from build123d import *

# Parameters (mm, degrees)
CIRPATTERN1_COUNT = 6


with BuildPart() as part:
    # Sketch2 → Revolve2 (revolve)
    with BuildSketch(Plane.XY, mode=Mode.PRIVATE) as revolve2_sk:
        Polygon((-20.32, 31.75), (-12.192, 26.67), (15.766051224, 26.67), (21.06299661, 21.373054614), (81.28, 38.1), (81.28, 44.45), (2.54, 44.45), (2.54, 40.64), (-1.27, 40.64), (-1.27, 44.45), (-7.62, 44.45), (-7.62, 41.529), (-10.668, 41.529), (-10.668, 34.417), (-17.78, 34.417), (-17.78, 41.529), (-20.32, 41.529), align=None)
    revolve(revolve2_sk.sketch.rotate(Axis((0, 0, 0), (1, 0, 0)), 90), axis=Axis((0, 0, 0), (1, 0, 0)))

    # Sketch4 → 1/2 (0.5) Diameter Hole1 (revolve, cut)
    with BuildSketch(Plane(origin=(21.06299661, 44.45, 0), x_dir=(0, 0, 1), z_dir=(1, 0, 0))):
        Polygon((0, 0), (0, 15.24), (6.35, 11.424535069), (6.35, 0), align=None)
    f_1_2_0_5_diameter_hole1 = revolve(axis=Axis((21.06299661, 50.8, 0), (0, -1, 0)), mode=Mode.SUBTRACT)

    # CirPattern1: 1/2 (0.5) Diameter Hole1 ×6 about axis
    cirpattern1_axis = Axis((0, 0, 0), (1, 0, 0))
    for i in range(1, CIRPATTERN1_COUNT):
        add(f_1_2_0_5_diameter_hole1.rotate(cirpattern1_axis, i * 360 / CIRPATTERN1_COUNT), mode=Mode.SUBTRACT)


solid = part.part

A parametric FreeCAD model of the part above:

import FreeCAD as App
import Part
import Sketcher

V = App.Vector
Q = App.Units.Quantity

doc = App.newDocument("Part")
body = doc.addObject("PartDesign::Body", "Body")

sketch1 = body.newObject("Sketcher::SketchObject", "Sketch")
sketch1.AttachmentSupport = (doc.getObject("XY_Plane"), [""])
sketch1.MapMode = "FlatFace"
sketch1.addGeometry(Part.LineSegment(V(-20.3, 31.8, 0), V(-12.2, 26.7, 0)), False)
sketch1.addGeometry(Part.LineSegment(V(-12.2, 26.7, 0), V(15.8, 26.7, 0)), False)
sketch1.addGeometry(Part.LineSegment(V(15.8, 26.7, 0), V(21.1, 21.4, 0)), False)
sketch1.addGeometry(Part.LineSegment(V(21.1, 21.4, 0), V(81.3, 38.1, 0)), False)
sketch1.addGeometry(Part.LineSegment(V(81.3, 38.1, 0), V(81.3, 44.5, 0)), False)
sketch1.addGeometry(Part.LineSegment(V(81.3, 44.5, 0), V(2.5, 44.5, 0)), False)
sketch1.addGeometry(Part.LineSegment(V(2.5, 44.5, 0), V(2.5, 40.6, 0)), False)
sketch1.addGeometry(Part.LineSegment(V(2.5, 40.6, 0), V(-1.3, 40.6, 0)), False)
sketch1.addGeometry(Part.LineSegment(V(-1.3, 40.6, 0), V(-1.3, 44.5, 0)), False)
sketch1.addGeometry(Part.LineSegment(V(-1.3, 44.5, 0), V(-7.6, 44.5, 0)), False)
sketch1.addGeometry(Part.LineSegment(V(-7.6, 44.5, 0), V(-7.6, 41.5, 0)), False)
sketch1.addGeometry(Part.LineSegment(V(-7.6, 41.5, 0), V(-10.7, 41.5, 0)), False)
sketch1.addGeometry(Part.LineSegment(V(-10.7, 41.5, 0), V(-10.7, 34.4, 0)), False)
sketch1.addGeometry(Part.LineSegment(V(-10.7, 34.4, 0), V(-17.8, 34.4, 0)), False)
sketch1.addGeometry(Part.LineSegment(V(-17.8, 34.4, 0), V(-17.8, 41.5, 0)), False)
sketch1.addGeometry(Part.LineSegment(V(-17.8, 41.5, 0), V(-20.3, 41.5, 0)), False)
sketch1.addGeometry(Part.LineSegment(V(-20.3, 41.5, 0), V(-20.3, 31.8, 0)), False)
sketch1.addConstraint(Sketcher.Constraint("Coincident", 0, 2, 1, 1))
sketch1.addConstraint(Sketcher.Constraint("Coincident", 1, 2, 2, 1))
sketch1.addConstraint(Sketcher.Constraint("Coincident", 2, 2, 3, 1))
sketch1.addConstraint(Sketcher.Constraint("Coincident", 3, 2, 4, 1))
sketch1.addConstraint(Sketcher.Constraint("Coincident", 4, 2, 5, 1))
sketch1.addConstraint(Sketcher.Constraint("Coincident", 5, 2, 6, 1))
sketch1.addConstraint(Sketcher.Constraint("Coincident", 6, 2, 7, 1))
sketch1.addConstraint(Sketcher.Constraint("Coincident", 7, 2, 8, 1))
sketch1.addConstraint(Sketcher.Constraint("Coincident", 8, 2, 9, 1))
sketch1.addConstraint(Sketcher.Constraint("Coincident", 9, 2, 10, 1))
sketch1.addConstraint(Sketcher.Constraint("Coincident", 10, 2, 11, 1))
sketch1.addConstraint(Sketcher.Constraint("Coincident", 11, 2, 12, 1))
sketch1.addConstraint(Sketcher.Constraint("Coincident", 12, 2, 13, 1))
sketch1.addConstraint(Sketcher.Constraint("Coincident", 13, 2, 14, 1))
sketch1.addConstraint(Sketcher.Constraint("Coincident", 14, 2, 15, 1))
sketch1.addConstraint(Sketcher.Constraint("Coincident", 15, 2, 16, 1))
sketch1.addConstraint(Sketcher.Constraint("Coincident", 16, 2, 0, 1))
sketch1.addConstraint(Sketcher.Constraint("Horizontal", 1))
sketch1.addConstraint(Sketcher.Constraint("Vertical", 4))
sketch1.addConstraint(Sketcher.Constraint("Horizontal", 5))
sketch1.addConstraint(Sketcher.Constraint("Vertical", 6))
sketch1.addConstraint(Sketcher.Constraint("Horizontal", 7))
sketch1.addConstraint(Sketcher.Constraint("Vertical", 8))
sketch1.addConstraint(Sketcher.Constraint("Horizontal", 9))
sketch1.addConstraint(Sketcher.Constraint("Vertical", 10))
sketch1.addConstraint(Sketcher.Constraint("Horizontal", 11))
sketch1.addConstraint(Sketcher.Constraint("Vertical", 12))
sketch1.addConstraint(Sketcher.Constraint("Horizontal", 13))
sketch1.addConstraint(Sketcher.Constraint("Vertical", 14))
sketch1.addConstraint(Sketcher.Constraint("Horizontal", 15))
sketch1.addConstraint(Sketcher.Constraint("Vertical", 16))
sketch1.addConstraint(Sketcher.Constraint("Horizontal", 5, 2, 8, 2))
sketch1.addConstraint(Sketcher.Constraint("Horizontal", 11, 2, 14, 2))
sketch1.addConstraint(Sketcher.Constraint("Equal", 9, 4))
sketch1.addConstraint(Sketcher.Constraint("Equal", 7, 6))
sketch1.addConstraint(Sketcher.Constraint("Equal", 13, 12))
sketch1.addConstraint(Sketcher.Constraint("DistanceX", 5, 2, 5, 1, Q("3.1 in")))
sketch1.addConstraint(Sketcher.Constraint("DistanceX", 15, 2, 15, 1, Q("0.1 in")))
sketch1.addConstraint(Sketcher.Constraint("Angle", 2, Q("-45 deg")))
sketch1.addConstraint(Sketcher.Constraint("DistanceX", 7, 2, 7, 1, Q("0.15 in")))
sketch1.addConstraint(Sketcher.Constraint("DistanceX", 9, 2, 9, 1, Q("0.25 in")))
sketch1.addConstraint(Sketcher.Constraint("DistanceX", 11, 2, 11, 1, Q("0.12 in")))
sketch1.addConstraint(Sketcher.Constraint("DistanceX", 13, 2, 13, 1, Q("0.28 in")))
sketch1.addConstraint(Sketcher.Constraint("DistanceX", -1, 1, 3, 2, Q("3.2 in")))
sketch1.addConstraint(Sketcher.Constraint("DistanceY", -1, 1, 3, 2, Q("1.5 in")))
sketch1.addConstraint(Sketcher.Constraint("DistanceY", 1, 2, 4, 2, Q("0.7 in")))
sketch1.addConstraint(Sketcher.Constraint("DistanceY", 0, 2, 16, 2, Q("0.2 in")))
sketch1.addConstraint(Sketcher.Constraint("DistanceY", 10, 2, 10, 1, Q("0.115 in")))
sketch1.addConstraint(Sketcher.Constraint("DistanceX", 0, 2, -1, 1, Q("0.48 in")))
sketch1.addConstraint(Sketcher.Constraint("DistanceX", 1, 1, 1, 2, 27.958051))
sketch1.addConstraint(Sketcher.Constraint("Distance", 2, 7.491012))
revolution = body.newObject("PartDesign::Revolution", "Revolution")
revolution.Profile = sketch1
revolution.ReferenceAxis = (sketch1, ["H_Axis"])
revolution.Angle = 360

sketch2 = body.newObject("Sketcher::SketchObject", "Sketch001")
sketch2.AttachmentSupport = (doc.getObject("YZ_Plane"), [""])
sketch2.MapMode = "FlatFace"
sketch2.AttachmentOffset = App.Placement(V(0, 0, 21.062997), App.Rotation())
sketch2.addGeometry(Part.LineSegment(V(29, 0, 0), V(44, 0, 0)), False)
sketch2.addGeometry(Part.LineSegment(V(44, 0, 0), V(44, 6, 0)), False)
sketch2.addGeometry(Part.LineSegment(V(44, 6, 0), V(33, 6, 0)), False)
sketch2.addGeometry(Part.LineSegment(V(33, 6, 0), V(29, 0, 0)), False)
sketch2.addConstraint(Sketcher.Constraint("Coincident", 0, 2, 1, 1))
sketch2.addConstraint(Sketcher.Constraint("Coincident", 1, 2, 2, 1))
sketch2.addConstraint(Sketcher.Constraint("Coincident", 2, 2, 3, 1))
sketch2.addConstraint(Sketcher.Constraint("Coincident", 3, 2, 0, 1))
sketch2.addConstraint(Sketcher.Constraint("Horizontal", 0))
sketch2.addConstraint(Sketcher.Constraint("Vertical", 1))
sketch2.addConstraint(Sketcher.Constraint("Horizontal", 2))
sketch2.addConstraint(Sketcher.Constraint("PointOnObject", 0, 2, -1))
sketch2.addConstraint(Sketcher.Constraint("DistanceX", 0, 1, 0, 2, Q("0.6 in")))
sketch2.addConstraint(Sketcher.Constraint("Angle", 3, Q("-121 deg")))
sketch2.addConstraint(Sketcher.Constraint("DistanceY", 1, 1, 1, 2, Q("0.25 in")))
sketch2.addConstraint(Sketcher.Constraint("DistanceX", -1, 1, 0, 2, Q("1.75 in")))
groove = body.newObject("PartDesign::Groove", "Groove")
groove.Profile = sketch2
groove.ReferenceAxis = (sketch2, ["H_Axis"])
groove.Angle = 360
doc.recompute()

polarpattern = body.newObject("PartDesign::PolarPattern", "PolarPattern")
polarpattern.Originals = [groove]
polarpattern.Axis = (doc.getObject("X_Axis"), [""])
polarpattern.Angle = 360
polarpattern.Occurrences = 6
body.Tip = polarpattern

doc.recompute()
